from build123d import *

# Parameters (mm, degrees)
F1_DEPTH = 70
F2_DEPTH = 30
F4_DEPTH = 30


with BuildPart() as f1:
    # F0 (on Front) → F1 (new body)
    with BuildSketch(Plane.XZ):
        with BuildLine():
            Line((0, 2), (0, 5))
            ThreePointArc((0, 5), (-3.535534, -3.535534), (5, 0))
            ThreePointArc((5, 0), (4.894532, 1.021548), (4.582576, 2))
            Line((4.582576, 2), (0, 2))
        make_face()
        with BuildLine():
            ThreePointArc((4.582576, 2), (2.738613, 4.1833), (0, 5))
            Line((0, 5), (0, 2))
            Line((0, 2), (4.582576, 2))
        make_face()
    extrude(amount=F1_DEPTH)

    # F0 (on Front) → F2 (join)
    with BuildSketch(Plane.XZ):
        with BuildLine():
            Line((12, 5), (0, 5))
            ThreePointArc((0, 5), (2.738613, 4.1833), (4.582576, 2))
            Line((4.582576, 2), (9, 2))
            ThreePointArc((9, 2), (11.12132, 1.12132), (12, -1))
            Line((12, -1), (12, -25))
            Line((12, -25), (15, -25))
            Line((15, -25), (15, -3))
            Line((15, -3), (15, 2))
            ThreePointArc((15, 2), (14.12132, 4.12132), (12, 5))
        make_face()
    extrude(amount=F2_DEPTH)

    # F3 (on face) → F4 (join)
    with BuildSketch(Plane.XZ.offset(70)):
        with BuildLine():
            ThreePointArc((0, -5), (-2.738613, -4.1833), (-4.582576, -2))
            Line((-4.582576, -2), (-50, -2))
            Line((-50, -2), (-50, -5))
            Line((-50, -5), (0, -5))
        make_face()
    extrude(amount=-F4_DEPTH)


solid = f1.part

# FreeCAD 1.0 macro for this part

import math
import FreeCAD as App
import Part
import Sketcher

V = App.Vector

doc = App.newDocument("Part")
body = doc.addObject("PartDesign::Body", "Body")

sketch1 = doc.addObject("Sketcher::SketchObject", "Sketch")
body.addObject(sketch1)
sketch1.AttachmentSupport = (doc.XZ_Plane, [""])
sketch1.MapMode = "FlatFace"
sketch1.addGeometry([
    Part.ArcOfCircle(Part.Circle(V(0, 0, 0), V(0, 0, 1), 5), math.radians(89.999999), math.radians(360.000001)),
    Part.ArcOfCircle(Part.Circle(V(0.000011, 0.000003, 0), V(0, 0, 1), 4.999989), math.radians(-0.000035), math.radians(23.578196)),
    Part.ArcOfCircle(Part.Circle(V(0, -0.000001, 0), V(0, 0, 1), 5.000001), math.radians(23.578185), math.radians(89.999997)),
], False)
sketch1.addConstraint([
    Sketcher.Constraint("Tangent", 0, 2, 1, 1),
    Sketcher.Constraint("Tangent", 1, 2, 2, 1),
    Sketcher.Constraint("Tangent", 2, 2, 0, 1),
    Sketcher.Constraint("Coincident", 0, 3, -1, 1),
    Sketcher.Constraint("PointOnObject", 0, 2, -1),
    Sketcher.Constraint("PointOnObject", 2, 2, -2),
    Sketcher.Constraint("Radius", 0, 5.0),
    Sketcher.Constraint("DistanceY", -1, 1, 1, 2, 2.0),
])
pad1 = doc.addObject("PartDesign::Pad", "Pad")
body.addObject(pad1)
pad1.Profile = sketch1
pad1.Length = 70

sketch2 = doc.addObject("Sketcher::SketchObject", "Sketch001")
body.addObject(sketch2)
sketch2.AttachmentSupport = (doc.XZ_Plane, [""])
sketch2.MapMode = "FlatFace"
sketch2.addGeometry([
    Part.LineSegment(V(12, 5, 0), V(0, 5, 0)),
    Part.ArcOfCircle(Part.Circle(V(0, -0.000001, 0), V(0, 0, 1), 5.000001), math.radians(23.578185), math.radians(89.999997)),
    Part.LineSegment(V(4.582576, 2, 0), V(9, 2, 0)),
    Part.ArcOfCircle(Part.Circle(V(8.999999, -1.000001, 0), V(0, 0, 1), 3.000001), math.radians(0.000022), math.radians(89.999978)),
    Part.LineSegment(V(12, -1, 0), V(12, -25, 0)),
    Part.LineSegment(V(12, -25, 0), V(15, -25, 0)),
    Part.LineSegment(V(15, -25, 0), V(15, 2, 0)),
    Part.ArcOfCircle(Part.Circle(V(11.999999, 1.999999, 0), V(0, 0, 1), 3.000001), math.radians(0.000022), math.radians(89.999978)),
], False)
sketch2.addConstraint([
    Sketcher.Constraint("Tangent", 0, 2, 1, 2),
    Sketcher.Constraint("Coincident", 1, 1, 2, 1),
    Sketcher.Constraint("Tangent", 2, 2, 3, 2),
    Sketcher.Constraint("Tangent", 3, 1, 4, 1),
    Sketcher.Constraint("Coincident", 4, 2, 5, 1),
    Sketcher.Constraint("Coincident", 5, 2, 6, 1),
    Sketcher.Constraint("Tangent", 6, 2, 7, 1),
    Sketcher.Constraint("Tangent", 7, 2, 0, 1),
    Sketcher.Constraint("Horizontal", 0),
    Sketcher.Constraint("Horizontal", 2),
    Sketcher.Constraint("Vertical", 4),
    Sketcher.Constraint("Horizontal", 5),
    Sketcher.Constraint("Vertical", 6),
    Sketcher.Constraint("Coincident", 1, 3, -1, 1),
    Sketcher.Constraint("Equal", 3, 7),
    Sketcher.Constraint("Horizontal", 7, 3, 1, 1),
    Sketcher.Constraint("Vertical", 7, 3, 3, 1),
    Sketcher.Constraint("Radius", 1, 5.000001),
    Sketcher.Constraint("Radius", 3, 3.000001),
    Sketcher.Constraint("DistanceX", 0, 2, 0, 1, 12.0),
    Sketcher.Constraint("DistanceY", 4, 2, 4, 1, 24.0),
])
pad2 = doc.addObject("PartDesign::Pad", "Pad001")
body.addObject(pad2)
pad2.Profile = sketch2
pad2.Length = 30

sketch3 = doc.addObject("Sketcher::SketchObject", "Sketch002")
body.addObject(sketch3)
sketch3.AttachmentSupport = (doc.XZ_Plane, [""])
sketch3.MapMode = "FlatFace"
sketch3.AttachmentOffset = App.Placement(V(0, 0, 70), App.Rotation())
sketch3.addGeometry([
    Part.ArcOfCircle(Part.Circle(V(0, 0.000001, 0), V(0, 0, 1), 5.000001), math.radians(-156.421815), math.radians(-90.000003)),
    Part.LineSegment(V(-4.582576, -2, 0), V(-50, -2, 0)),
    Part.LineSegment(V(-50, -2, 0), V(-50, -5, 0)),
    Part.LineSegment(V(-50, -5, 0), V(0, -5, 0)),
], False)
sketch3.addConstraint([
    Sketcher.Constraint("Coincident", 0, 1, 1, 1),
    Sketcher.Constraint("Coincident", 1, 2, 2, 1),
    Sketcher.Constraint("Coincident", 2, 2, 3, 1),
    Sketcher.Constraint("Tangent", 3, 2, 0, 2),
    Sketcher.Constraint("Horizontal", 1),
    Sketcher.Constraint("Vertical", 2),
    Sketcher.Constraint("Horizontal", 3),
    Sketcher.Constraint("Coincident", 0, 3, -1, 1),
    Sketcher.Constraint("Radius", 0, 5.000001),
    Sketcher.Constraint("DistanceX", 3, 1, 3, 2, 50.0),
    Sketcher.Constraint("DistanceY", 2, 2, 2, 1, 3.0),
])
pad3 = doc.addObject("PartDesign::Pad", "Pad002")
body.addObject(pad3)
pad3.Profile = sketch3
pad3.Length = 30
pad3.Reversed = True

doc.recompute()
